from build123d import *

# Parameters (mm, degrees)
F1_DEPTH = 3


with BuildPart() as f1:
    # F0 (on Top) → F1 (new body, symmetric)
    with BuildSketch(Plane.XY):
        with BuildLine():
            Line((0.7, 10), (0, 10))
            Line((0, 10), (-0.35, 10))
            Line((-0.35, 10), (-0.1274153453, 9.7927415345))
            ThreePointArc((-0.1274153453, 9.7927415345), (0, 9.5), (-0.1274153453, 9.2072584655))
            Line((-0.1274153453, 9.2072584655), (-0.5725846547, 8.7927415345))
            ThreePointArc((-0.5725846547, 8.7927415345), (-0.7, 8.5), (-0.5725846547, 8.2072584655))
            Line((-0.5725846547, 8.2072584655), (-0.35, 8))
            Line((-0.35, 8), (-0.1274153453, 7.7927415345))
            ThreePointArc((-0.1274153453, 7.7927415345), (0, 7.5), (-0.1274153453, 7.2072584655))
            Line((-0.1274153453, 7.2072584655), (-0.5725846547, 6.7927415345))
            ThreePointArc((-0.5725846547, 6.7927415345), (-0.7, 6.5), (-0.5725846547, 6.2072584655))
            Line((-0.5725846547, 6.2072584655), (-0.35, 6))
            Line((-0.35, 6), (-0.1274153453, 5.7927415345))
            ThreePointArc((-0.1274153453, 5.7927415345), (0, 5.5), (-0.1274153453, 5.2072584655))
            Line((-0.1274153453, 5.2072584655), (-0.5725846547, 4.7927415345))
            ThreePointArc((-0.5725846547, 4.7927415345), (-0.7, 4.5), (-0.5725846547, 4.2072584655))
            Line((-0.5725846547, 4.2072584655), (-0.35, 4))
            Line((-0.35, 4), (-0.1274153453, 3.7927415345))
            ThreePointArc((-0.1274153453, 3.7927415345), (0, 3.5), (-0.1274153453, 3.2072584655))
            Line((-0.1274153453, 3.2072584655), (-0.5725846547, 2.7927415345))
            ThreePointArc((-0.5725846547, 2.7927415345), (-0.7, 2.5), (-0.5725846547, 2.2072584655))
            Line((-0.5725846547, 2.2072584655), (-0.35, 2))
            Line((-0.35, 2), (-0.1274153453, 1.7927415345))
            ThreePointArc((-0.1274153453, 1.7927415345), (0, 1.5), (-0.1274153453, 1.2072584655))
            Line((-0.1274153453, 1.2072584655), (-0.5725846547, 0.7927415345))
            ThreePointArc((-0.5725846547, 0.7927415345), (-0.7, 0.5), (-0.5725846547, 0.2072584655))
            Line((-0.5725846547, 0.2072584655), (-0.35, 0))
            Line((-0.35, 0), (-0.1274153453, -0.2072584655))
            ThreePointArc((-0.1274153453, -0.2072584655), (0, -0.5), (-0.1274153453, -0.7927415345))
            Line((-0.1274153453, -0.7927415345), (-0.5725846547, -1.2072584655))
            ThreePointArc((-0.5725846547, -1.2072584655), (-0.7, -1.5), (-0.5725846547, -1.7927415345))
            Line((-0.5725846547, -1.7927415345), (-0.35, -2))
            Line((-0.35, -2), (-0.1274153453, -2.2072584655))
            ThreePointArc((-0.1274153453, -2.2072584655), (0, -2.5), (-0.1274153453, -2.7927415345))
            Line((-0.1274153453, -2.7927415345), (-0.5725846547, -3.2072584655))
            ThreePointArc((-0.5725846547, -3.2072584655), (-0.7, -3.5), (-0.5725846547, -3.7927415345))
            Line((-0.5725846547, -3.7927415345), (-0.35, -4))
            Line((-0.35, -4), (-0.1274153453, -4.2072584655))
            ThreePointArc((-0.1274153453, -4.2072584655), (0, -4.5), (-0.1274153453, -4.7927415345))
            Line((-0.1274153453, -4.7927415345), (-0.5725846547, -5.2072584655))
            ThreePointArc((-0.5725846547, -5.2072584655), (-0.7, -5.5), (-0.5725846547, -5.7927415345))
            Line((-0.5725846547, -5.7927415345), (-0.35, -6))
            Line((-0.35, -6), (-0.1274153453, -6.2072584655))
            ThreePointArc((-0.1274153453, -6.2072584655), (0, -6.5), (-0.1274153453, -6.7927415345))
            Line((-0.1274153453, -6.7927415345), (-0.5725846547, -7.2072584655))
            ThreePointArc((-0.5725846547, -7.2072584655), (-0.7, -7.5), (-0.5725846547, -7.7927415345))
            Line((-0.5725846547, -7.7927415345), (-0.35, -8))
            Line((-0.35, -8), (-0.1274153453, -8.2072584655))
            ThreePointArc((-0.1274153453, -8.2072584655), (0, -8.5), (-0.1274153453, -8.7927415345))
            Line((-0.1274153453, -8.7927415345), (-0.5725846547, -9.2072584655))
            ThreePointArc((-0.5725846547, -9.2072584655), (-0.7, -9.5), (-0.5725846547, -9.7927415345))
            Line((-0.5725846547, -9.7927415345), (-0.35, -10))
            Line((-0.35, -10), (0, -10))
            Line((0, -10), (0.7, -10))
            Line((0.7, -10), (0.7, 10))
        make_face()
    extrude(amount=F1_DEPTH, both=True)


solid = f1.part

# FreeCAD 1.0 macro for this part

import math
import FreeCAD as App
import Part
import Sketcher

V = App.Vector
Q = App.Units.Quantity

doc = App.newDocument("Part")
params = doc.addObject("Spreadsheet::Sheet", "Params")
for row, (alias, value) in enumerate([
    ("sketch1_radius", "0.4 mm"),
    ("sketch1_height", "20 mm"),
    ("sketch1_width", "1.05 mm"),
    ("pad1_length", "6 mm"),
], start=1):
    params.set(f"A{row}", alias)
    params.set(f"B{row}", "=" + value)
    params.setAlias(f"B{row}", alias)

body = doc.addObject("PartDesign::Body", "Body")

sketch1 = doc.addObject("Sketcher::SketchObject", "Sketch")
body.addObject(sketch1)
sketch1.AttachmentSupport = (doc.XY_Plane, [""])
sketch1.MapMode = "FlatFace"
sketch1.addGeometry(Part.LineSegment(V(0.7, 10, 0), V(-0.35, 10, 0)), False)
sketch1.addGeometry(Part.LineSegment(V(-0.35, 10, 0), V(-0.13, 9.79, 0)), False)
sketch1.addGeometry(Part.ArcOfCircle(Part.Circle(V(-0.4, 9.5, 0), V(0, 0, 1), 0.4), math.radians(-47), math.radians(47)), False)
sketch1.addGeometry(Part.LineSegment(V(-0.13, 9.21, 0), V(-0.57, 8.79, 0)), False)
sketch1.addGeometry(Part.ArcOfCircle(Part.Circle(V(-0.3, 8.5, 0), V(0, 0, 1), 0.4), math.radians(133), math.radians(227)), False)
sketch1.addGeometry(Part.LineSegment(V(-0.57, 8.21, 0), V(-0.13, 7.79, 0)), False)
sketch1.addGeometry(Part.ArcOfCircle(Part.Circle(V(-0.4, 7.5, 0), V(0, 0, 1), 0.4), math.radians(-47), math.radians(47)), False)
sketch1.addGeometry(Part.LineSegment(V(-0.13, 7.21, 0), V(-0.57, 6.79, 0)), False)
sketch1.addGeometry(Part.ArcOfCircle(Part.Circle(V(-0.3, 6.5, 0), V(0, 0, 1), 0.4), math.radians(133), math.radians(227)), False)
sketch1.addGeometry(Part.LineSegment(V(-0.57, 6.21, 0), V(-0.13, 5.79, 0)), False)
sketch1.addGeometry(Part.ArcOfCircle(Part.Circle(V(-0.4, 5.5, 0), V(0, 0, 1), 0.4), math.radians(-47), math.radians(47)), False)
sketch1.addGeometry(Part.LineSegment(V(-0.13, 5.21, 0), V(-0.57, 4.79, 0)), False)
sketch1.addGeometry(Part.ArcOfCircle(Part.Circle(V(-0.3, 4.5, 0), V(0, 0, 1), 0.4), math.radians(133), math.radians(227)), False)
sketch1.addGeometry(Part.LineSegment(V(-0.57, 4.21, 0), V(-0.13, 3.79, 0)), False)
sketch1.addGeometry(Part.ArcOfCircle(Part.Circle(V(-0.4, 3.5, 0), V(0, 0, 1), 0.4), math.radians(-47), math.radians(47)), False)
sketch1.addGeometry(Part.LineSegment(V(-0.13, 3.21, 0), V(-0.57, 2.79, 0)), False)
sketch1.addGeometry(Part.ArcOfCircle(Part.Circle(V(-0.3, 2.5, 0), V(0, 0, 1), 0.4), math.radians(133), math.radians(227)), False)
sketch1.addGeometry(Part.LineSegment(V(-0.57, 2.21, 0), V(-0.13, 1.79, 0)), False)
sketch1.addGeometry(Part.ArcOfCircle(Part.Circle(V(-0.4, 1.5, 0), V(0, 0, 1), 0.4), math.radians(-47), math.radians(47)), False)
sketch1.addGeometry(Part.LineSegment(V(-0.13, 1.21, 0), V(-0.57, 0.79, 0)), False)
sketch1.addGeometry(Part.ArcOfCircle(Part.Circle(V(-0.3, 0.5, 0), V(0, 0, 1), 0.4), math.radians(133), math.radians(227)), False)
sketch1.addGeometry(Part.LineSegment(V(-0.57, 0.21, 0), V(-0.13, -0.21, 0)), False)
sketch1.addGeometry(Part.ArcOfCircle(Part.Circle(V(-0.4, -0.5, 0), V(0, 0, 1), 0.4), math.radians(-47), math.radians(47)), False)
sketch1.addGeometry(Part.LineSegment(V(-0.13, -0.79, 0), V(-0.57, -1.21, 0)), False)
sketch1.addGeometry(Part.ArcOfCircle(Part.Circle(V(-0.3, -1.5, 0), V(0, 0, 1), 0.4), math.radians(133), math.radians(227)), False)
sketch1.addGeometry(Part.LineSegment(V(-0.57, -1.79, 0), V(-0.13, -2.21, 0)), False)
sketch1.addGeometry(Part.ArcOfCircle(Part.Circle(V(-0.4, -2.5, 0), V(0, 0, 1), 0.4), math.radians(-47), math.radians(47)), False)
sketch1.addGeometry(Part.LineSegment(V(-0.13, -2.79, 0), V(-0.57, -3.21, 0)), False)
sketch1.addGeometry(Part.ArcOfCircle(Part.Circle(V(-0.3, -3.5, 0), V(0, 0, 1), 0.4), math.radians(133), math.radians(227)), False)
sketch1.addGeometry(Part.LineSegment(V(-0.57, -3.79, 0), V(-0.13, -4.21, 0)), False)
sketch1.addGeometry(Part.ArcOfCircle(Part.Circle(V(-0.4, -4.5, 0), V(0, 0, 1), 0.4), math.radians(-47), math.radians(47)), False)
sketch1.addGeometry(Part.LineSegment(V(-0.13, -4.79, 0), V(-0.57, -5.21, 0)), False)
sketch1.addGeometry(Part.ArcOfCircle(Part.Circle(V(-0.3, -5.5, 0), V(0, 0, 1), 0.4), math.radians(133), math.radians(227)), False)
sketch1.addGeometry(Part.LineSegment(V(-0.57, -5.79, 0), V(-0.13, -6.21, 0)), False)
sketch1.addGeometry(Part.ArcOfCircle(Part.Circle(V(-0.4, -6.5, 0), V(0, 0, 1), 0.4), math.radians(-47), math.radians(47)), False)
sketch1.addGeometry(Part.LineSegment(V(-0.13, -6.79, 0), V(-0.57, -7.21, 0)), False)
sketch1.addGeometry(Part.ArcOfCircle(Part.Circle(V(-0.3, -7.5, 0), V(0, 0, 1), 0.4), math.radians(133), math.radians(227)), False)
sketch1.addGeometry(Part.LineSegment(V(-0.57, -7.79, 0), V(-0.13, -8.21, 0)), False)
sketch1.addGeometry(Part.ArcOfCircle(Part.Circle(V(-0.4, -8.5, 0), V(0, 0, 1), 0.4), math.radians(-47), math.radians(47)), False)
sketch1.addGeometry(Part.LineSegment(V(-0.13, -8.79, 0), V(-0.57, -9.21, 0)), False)
sketch1.addGeometry(Part.ArcOfCircle(Part.Circle(V(-0.3, -9.5, 0), V(0, 0, 1), 0.4), math.radians(133), math.radians(227)), False)
sketch1.addGeometry(Part.LineSegment(V(-0.57, -9.79, 0), V(-0.35, -10, 0)), False)
sketch1.addGeometry(Part.LineSegment(V(-0.35, -10, 0), V(0.7, -10, 0)), False)
sketch1.addGeometry(Part.LineSegment(V(0.7, -10, 0), V(0.7, 10, 0)), False)
sketch1.addConstraint(Sketcher.Constraint("Coincident", 0, 2, 1, 1))
sketch1.addConstraint(Sketcher.Constraint("Tangent", 1, 2, 2, 2))
sketch1.addConstraint(Sketcher.Constraint("Tangent", 2, 1, 3, 1))
sketch1.addConstraint(Sketcher.Constraint("Tangent", 3, 2, 4, 1))
sketch1.addConstraint(Sketcher.Constraint("Tangent", 4, 2, 5, 1))
sketch1.addConstraint(Sketcher.Constraint("Tangent", 5, 2, 6, 2))
sketch1.addConstraint(Sketcher.Constraint("Tangent", 6, 1, 7, 1))
sketch1.addConstraint(Sketcher.Constraint("Tangent", 7, 2, 8, 1))
sketch1.addConstraint(Sketcher.Constraint("Tangent", 8, 2, 9, 1))
sketch1.addConstraint(Sketcher.Constraint("Tangent", 9, 2, 10, 2))
sketch1.addConstraint(Sketcher.Constraint("Tangent", 10, 1, 11, 1))
sketch1.addConstraint(Sketcher.Constraint("Tangent", 11, 2, 12, 1))
sketch1.addConstraint(Sketcher.Constraint("Tangent", 12, 2, 13, 1))
sketch1.addConstraint(Sketcher.Constraint("Tangent", 13, 2, 14, 2))
sketch1.addConstraint(Sketcher.Constraint("Tangent", 14, 1, 15, 1))
sketch1.addConstraint(Sketcher.Constraint("Tangent", 15, 2, 16, 1))
sketch1.addConstraint(Sketcher.Constraint("Tangent", 16, 2, 17, 1))
sketch1.addConstraint(Sketcher.Constraint("Tangent", 17, 2, 18, 2))
sketch1.addConstraint(Sketcher.Constraint("Tangent", 18, 1, 19, 1))
sketch1.addConstraint(Sketcher.Constraint("Tangent", 19, 2, 20, 1))
sketch1.addConstraint(Sketcher.Constraint("Tangent", 20, 2, 21, 1))
sketch1.addConstraint(Sketcher.Constraint("Tangent", 21, 2, 22, 2))
sketch1.addConstraint(Sketcher.Constraint("Tangent", 22, 1, 23, 1))
sketch1.addConstraint(Sketcher.Constraint("Tangent", 23, 2, 24, 1))
sketch1.addConstraint(Sketcher.Constraint("Tangent", 24, 2, 25, 1))
sketch1.addConstraint(Sketcher.Constraint("Tangent", 25, 2, 26, 2))
sketch1.addConstraint(Sketcher.Constraint("Tangent", 26, 1, 27, 1))
sketch1.addConstraint(Sketcher.Constraint("Tangent", 27, 2, 28, 1))
sketch1.addConstraint(Sketcher.Constraint("Tangent", 28, 2, 29, 1))
sketch1.addConstraint(Sketcher.Constraint("Tangent", 29, 2, 30, 2))
sketch1.addConstraint(Sketcher.Constraint("Tangent", 30, 1, 31, 1))
sketch1.addConstraint(Sketcher.Constraint("Tangent", 31, 2, 32, 1))
sketch1.addConstraint(Sketcher.Constraint("Tangent", 32, 2, 33, 1))
sketch1.addConstraint(Sketcher.Constraint("Tangent", 33, 2, 34, 2))
sketch1.addConstraint(Sketcher.Constraint("Tangent", 34, 1, 35, 1))
sketch1.addConstraint(Sketcher.Constraint("Tangent", 35, 2, 36, 1))
sketch1.addConstraint(Sketcher.Constraint("Tangent", 36, 2, 37, 1))
sketch1.addConstraint(Sketcher.Constraint("Tangent", 37, 2, 38, 2))
sketch1.addConstraint(Sketcher.Constraint("Tangent", 38, 1, 39, 1))
sketch1.addConstraint(Sketcher.Constraint("Tangent", 39, 2, 40, 1))
sketch1.addConstraint(Sketcher.Constraint("Tangent", 40, 2, 41, 1))
sketch1.addConstraint(Sketcher.Constraint("Coincident", 41, 2, 42, 1))
sketch1.addConstraint(Sketcher.Constraint("Coincident", 42, 2, 43, 1))
sketch1.addConstraint(Sketcher.Constraint("Coincident", 43, 2, 0, 1))
sketch1.addConstraint(Sketcher.Constraint("Horizontal", 0))
sketch1.addConstraint(Sketcher.Constraint("Horizontal", 42))
sketch1.addConstraint(Sketcher.Constraint("Vertical", 43))
sketch1.addConstraint(Sketcher.Constraint("Equal", 2, 4))
sketch1.addConstraint(Sketcher.Constraint("Equal", 4, 6))
sketch1.addConstraint(Sketcher.Constraint("Equal", 6, 8))
sketch1.addConstraint(Sketcher.Constraint("Equal", 8, 10))
sketch1.addConstraint(Sketcher.Constraint("Equal", 10, 12))
sketch1.addConstraint(Sketcher.Constraint("Equal", 12, 14))
sketch1.addConstraint(Sketcher.Constraint("Equal", 14, 16))
sketch1.addConstraint(Sketcher.Constraint("Equal", 16, 18))
sketch1.addConstraint(Sketcher.Constraint("Equal", 18, 20))
sketch1.addConstraint(Sketcher.Constraint("Equal", 20, 22))
sketch1.addConstraint(Sketcher.Constraint("Equal", 22, 24))
sketch1.addConstraint(Sketcher.Constraint("Equal", 24, 26))
sketch1.addConstraint(Sketcher.Constraint("Equal", 26, 28))
sketch1.addConstraint(Sketcher.Constraint("Equal", 28, 30))
sketch1.addConstraint(Sketcher.Constraint("Equal", 30, 32))
sketch1.addConstraint(Sketcher.Constraint("Equal", 32, 34))
sketch1.addConstraint(Sketcher.Constraint("Equal", 34, 36))
sketch1.addConstraint(Sketcher.Constraint("Equal", 36, 38))
sketch1.addConstraint(Sketcher.Constraint("Equal", 38, 40))
sketch1.addConstraint(Sketcher.Constraint("Symmetric", 0, 2, 41, 2, -1))
sketch1.addConstraint(Sketcher.Constraint("Parallel", 1, 5))
sketch1.addConstraint(Sketcher.Constraint("Parallel", 3, 7))
sketch1.addConstraint(Sketcher.Constraint("Parallel", 5, 9))
sketch1.addConstraint(Sketcher.Constraint("Parallel", 7, 11))
sketch1.addConstraint(Sketcher.Constraint("Parallel", 9, 13))
sketch1.addConstraint(Sketcher.Constraint("Parallel", 11, 15))
sketch1.addConstraint(Sketcher.Constraint("Parallel", 13, 17))
sketch1.addConstraint(Sketcher.Constraint("Parallel", 15, 19))
sketch1.addConstraint(Sketcher.Constraint("Parallel", 17, 21))
sketch1.addConstraint(Sketcher.Constraint("Parallel", 19, 23))
sketch1.addConstraint(Sketcher.Constraint("Parallel", 21, 25))
sketch1.addConstraint(Sketcher.Constraint("Parallel", 23, 27))
sketch1.addConstraint(Sketcher.Constraint("Parallel", 25, 29))
sketch1.addConstraint(Sketcher.Constraint("Parallel", 27, 31))
sketch1.addConstraint(Sketcher.Constraint("Parallel", 29, 33))
sketch1.addConstraint(Sketcher.Constraint("Parallel", 31, 35))
sketch1.addConstraint(Sketcher.Constraint("Parallel", 33, 37))
sketch1.addConstraint(Sketcher.Constraint("Parallel", 35, 39))
sketch1.addConstraint(Sketcher.Constraint("Parallel", 37, 41))
sketch1.addConstraint(Sketcher.Constraint("Vertical", 2, 3, 6, 3))
sketch1.addConstraint(Sketcher.Constraint("Vertical", 4, 3, 8, 3))
sketch1.addConstraint(Sketcher.Constraint("Vertical", 6, 3, 10, 3))
sketch1.addConstraint(Sketcher.Constraint("Vertical", 8, 3, 12, 3))
sketch1.addConstraint(Sketcher.Constraint("Vertical", 10, 3, 14, 3))
sketch1.addConstraint(Sketcher.Constraint("Vertical", 12, 3, 16, 3))
sketch1.addConstraint(Sketcher.Constraint("Vertical", 14, 3, 18, 3))
sketch1.addConstraint(Sketcher.Constraint("Vertical", 16, 3, 20, 3))
sketch1.addConstraint(Sketcher.Constraint("Vertical", 18, 3, 22, 3))
sketch1.addConstraint(Sketcher.Constraint("Vertical", 20, 3, 24, 3))
sketch1.addConstraint(Sketcher.Constraint("Vertical", 22, 3, 26, 3))
sketch1.addConstraint(Sketcher.Constraint("Vertical", 24, 3, 28, 3))
sketch1.addConstraint(Sketcher.Constraint("Vertical", 26, 3, 30, 3))
sketch1.addConstraint(Sketcher.Constraint("Vertical", 28, 3, 32, 3))
sketch1.addConstraint(Sketcher.Constraint("Vertical", 30, 3, 34, 3))
sketch1.addConstraint(Sketcher.Constraint("Vertical", 32, 3, 36, 3))
sketch1.addConstraint(Sketcher.Constraint("Vertical", 34, 3, 38, 3))
sketch1.addConstraint(Sketcher.Constraint("Vertical", 36, 3, 40, 3))
sketch1.addConstraint(Sketcher.Constraint("Vertical", 1, 2, 2, 1))
sketch1.addConstraint(Sketcher.Constraint("Equal", 1, 41))
sketch1.addConstraint(Sketcher.Constraint("Radius", 2, Q("0.4 mm")))
sketch1.addConstraint(Sketcher.Constraint("DistanceY", 43, 1, 43, 2, Q("20 mm")))
sketch1.addConstraint(Sketcher.Constraint("DistanceX", 0, 2, 0, 1, Q("1.05 mm")))
sketch1.addConstraint(Sketcher.Constraint("DistanceX", 2, 3, -1, 1, Q("0.4 mm")))
sketch1.addConstraint(Sketcher.Constraint("DistanceX", 4, 3, -1, 1, Q("0.3 mm")))
sketch1.setExpression("Constraints[106]", "Params.sketch1_radius")
sketch1.setExpression("Constraints[107]", "Params.sketch1_height")
sketch1.setExpression("Constraints[108]", "Params.sketch1_width")
pad1 = doc.addObject("PartDesign::Pad", "Pad")
body.addObject(pad1)
pad1.Profile = sketch1
pad1.setExpression("Length", "Params.pad1_length")
pad1.Midplane = True

doc.recompute()
